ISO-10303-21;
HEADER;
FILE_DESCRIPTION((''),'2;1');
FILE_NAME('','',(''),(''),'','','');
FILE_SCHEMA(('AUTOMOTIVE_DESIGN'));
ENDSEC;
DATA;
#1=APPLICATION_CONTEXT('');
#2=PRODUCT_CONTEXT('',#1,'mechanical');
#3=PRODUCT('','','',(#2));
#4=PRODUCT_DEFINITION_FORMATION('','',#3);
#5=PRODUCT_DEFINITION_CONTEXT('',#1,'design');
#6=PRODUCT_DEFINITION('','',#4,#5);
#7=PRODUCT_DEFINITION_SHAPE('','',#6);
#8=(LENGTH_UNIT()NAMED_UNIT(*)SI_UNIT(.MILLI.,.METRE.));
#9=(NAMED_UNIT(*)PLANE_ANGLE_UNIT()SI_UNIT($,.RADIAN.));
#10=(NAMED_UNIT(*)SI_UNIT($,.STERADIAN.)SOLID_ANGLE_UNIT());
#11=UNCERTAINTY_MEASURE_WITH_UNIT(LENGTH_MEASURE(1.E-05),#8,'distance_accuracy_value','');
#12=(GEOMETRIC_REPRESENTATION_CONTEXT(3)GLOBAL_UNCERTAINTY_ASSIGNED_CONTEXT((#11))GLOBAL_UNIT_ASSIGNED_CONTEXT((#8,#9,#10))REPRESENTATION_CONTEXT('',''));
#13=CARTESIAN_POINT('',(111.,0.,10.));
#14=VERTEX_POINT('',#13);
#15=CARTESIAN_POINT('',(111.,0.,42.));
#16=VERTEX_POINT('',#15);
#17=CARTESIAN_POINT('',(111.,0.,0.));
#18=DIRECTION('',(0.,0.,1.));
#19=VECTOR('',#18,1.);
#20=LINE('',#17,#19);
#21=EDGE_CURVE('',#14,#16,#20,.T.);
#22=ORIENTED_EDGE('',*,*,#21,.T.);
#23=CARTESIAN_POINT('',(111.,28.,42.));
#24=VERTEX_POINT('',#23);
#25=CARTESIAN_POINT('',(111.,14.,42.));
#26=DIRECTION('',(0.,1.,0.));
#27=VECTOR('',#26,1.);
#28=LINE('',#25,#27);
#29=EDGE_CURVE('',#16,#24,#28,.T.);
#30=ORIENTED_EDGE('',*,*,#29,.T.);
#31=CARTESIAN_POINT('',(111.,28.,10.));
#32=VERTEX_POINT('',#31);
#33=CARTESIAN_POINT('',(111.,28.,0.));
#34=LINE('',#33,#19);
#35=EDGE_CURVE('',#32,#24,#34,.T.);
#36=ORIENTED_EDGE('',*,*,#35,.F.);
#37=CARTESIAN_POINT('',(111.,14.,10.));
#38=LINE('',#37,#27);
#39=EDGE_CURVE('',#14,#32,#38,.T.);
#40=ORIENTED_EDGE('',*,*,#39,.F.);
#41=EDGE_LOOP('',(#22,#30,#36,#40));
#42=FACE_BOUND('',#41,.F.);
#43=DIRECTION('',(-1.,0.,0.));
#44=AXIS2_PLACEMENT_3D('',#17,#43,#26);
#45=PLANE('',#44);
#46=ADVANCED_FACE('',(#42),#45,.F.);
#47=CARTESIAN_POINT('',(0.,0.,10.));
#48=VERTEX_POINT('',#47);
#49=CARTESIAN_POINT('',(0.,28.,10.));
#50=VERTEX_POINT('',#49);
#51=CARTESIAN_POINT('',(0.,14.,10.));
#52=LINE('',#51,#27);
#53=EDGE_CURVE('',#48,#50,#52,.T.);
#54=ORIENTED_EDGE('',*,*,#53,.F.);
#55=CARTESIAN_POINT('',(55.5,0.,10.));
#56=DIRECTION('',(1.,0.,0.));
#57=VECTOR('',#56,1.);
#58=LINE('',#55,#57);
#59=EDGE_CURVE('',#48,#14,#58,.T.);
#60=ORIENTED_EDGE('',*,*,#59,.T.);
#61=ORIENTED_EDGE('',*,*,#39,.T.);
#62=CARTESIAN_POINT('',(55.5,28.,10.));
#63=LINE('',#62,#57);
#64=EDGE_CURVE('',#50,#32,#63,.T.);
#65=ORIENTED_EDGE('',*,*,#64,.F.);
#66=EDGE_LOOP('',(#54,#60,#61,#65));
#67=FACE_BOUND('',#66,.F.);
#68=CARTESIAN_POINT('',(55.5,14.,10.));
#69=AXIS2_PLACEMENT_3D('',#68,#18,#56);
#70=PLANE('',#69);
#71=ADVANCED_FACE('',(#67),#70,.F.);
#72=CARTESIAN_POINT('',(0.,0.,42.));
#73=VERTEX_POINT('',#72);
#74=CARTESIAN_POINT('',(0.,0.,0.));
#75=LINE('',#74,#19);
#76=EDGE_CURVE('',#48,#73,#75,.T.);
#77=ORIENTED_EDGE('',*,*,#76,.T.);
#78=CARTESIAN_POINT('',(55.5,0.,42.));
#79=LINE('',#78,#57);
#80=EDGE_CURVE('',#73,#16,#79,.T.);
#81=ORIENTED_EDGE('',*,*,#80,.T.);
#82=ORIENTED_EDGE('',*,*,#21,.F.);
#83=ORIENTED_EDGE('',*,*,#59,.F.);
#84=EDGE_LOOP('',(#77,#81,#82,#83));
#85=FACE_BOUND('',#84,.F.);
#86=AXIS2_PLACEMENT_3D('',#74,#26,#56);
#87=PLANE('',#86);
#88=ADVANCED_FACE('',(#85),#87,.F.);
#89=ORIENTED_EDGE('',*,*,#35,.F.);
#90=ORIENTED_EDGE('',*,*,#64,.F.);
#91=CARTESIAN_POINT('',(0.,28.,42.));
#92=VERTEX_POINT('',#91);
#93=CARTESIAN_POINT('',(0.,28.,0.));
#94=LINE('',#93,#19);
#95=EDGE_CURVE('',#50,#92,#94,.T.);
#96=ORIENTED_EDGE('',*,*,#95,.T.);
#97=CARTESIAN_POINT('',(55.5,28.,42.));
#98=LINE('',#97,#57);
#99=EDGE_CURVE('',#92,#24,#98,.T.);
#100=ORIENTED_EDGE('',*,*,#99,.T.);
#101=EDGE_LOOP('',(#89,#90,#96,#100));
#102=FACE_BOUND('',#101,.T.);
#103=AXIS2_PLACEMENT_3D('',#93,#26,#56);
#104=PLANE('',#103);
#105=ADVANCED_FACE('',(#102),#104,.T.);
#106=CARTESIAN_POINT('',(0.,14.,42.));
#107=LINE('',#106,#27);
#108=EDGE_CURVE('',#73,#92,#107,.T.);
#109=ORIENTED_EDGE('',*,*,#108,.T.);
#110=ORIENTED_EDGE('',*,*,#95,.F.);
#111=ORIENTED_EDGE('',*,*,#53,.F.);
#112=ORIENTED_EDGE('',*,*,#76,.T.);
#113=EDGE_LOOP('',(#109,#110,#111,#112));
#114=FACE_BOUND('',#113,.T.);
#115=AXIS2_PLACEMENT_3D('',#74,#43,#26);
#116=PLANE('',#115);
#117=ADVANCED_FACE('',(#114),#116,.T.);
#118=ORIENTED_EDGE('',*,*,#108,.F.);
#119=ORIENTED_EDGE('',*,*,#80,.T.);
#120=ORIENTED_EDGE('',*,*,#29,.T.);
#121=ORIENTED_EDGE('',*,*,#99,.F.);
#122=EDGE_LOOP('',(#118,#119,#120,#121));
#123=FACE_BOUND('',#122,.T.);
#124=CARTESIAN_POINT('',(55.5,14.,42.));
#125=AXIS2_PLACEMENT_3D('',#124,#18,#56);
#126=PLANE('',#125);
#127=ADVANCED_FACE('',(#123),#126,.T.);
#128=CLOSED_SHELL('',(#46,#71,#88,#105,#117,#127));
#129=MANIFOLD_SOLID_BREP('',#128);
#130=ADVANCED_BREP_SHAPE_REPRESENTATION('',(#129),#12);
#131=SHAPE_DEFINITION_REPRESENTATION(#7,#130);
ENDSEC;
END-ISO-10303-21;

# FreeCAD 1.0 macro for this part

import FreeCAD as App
import Part
import Sketcher
from FreeCAD import Vector
Q = App.Units.Quantity


def add_polygon(sketch, points):
    """Adds a closed chain of lines whose ends are joined by coincident constraints."""
    first, n = sketch.GeometryCount, len(points)
    for a, b in zip(points, points[1:] + points[:1]):
        sketch.addGeometry(Part.LineSegment(App.Vector(*a, 0), App.Vector(*b, 0)), False)
    for i in range(n):
        sketch.addConstraint(Sketcher.Constraint("Coincident", first + i, 2, first + (i + 1) % n, 1))

doc = App.newDocument("Part")
body = doc.addObject("PartDesign::Body", "Body")

# Sketch on XY plane
sketch1 = body.newObject("Sketcher::SketchObject", "Sketch")
sketch1.AttachmentSupport = (doc.getObject("XY_Plane"), [""])
sketch1.MapMode = "FlatFace"
add_polygon(sketch1, [(0, 28), (0, 0), (111, 0), (111, 28)])  # lines 0-3
sketch1.addConstraint(Sketcher.Constraint("Vertical", 0))
sketch1.addConstraint(Sketcher.Constraint("Horizontal", 1))
sketch1.addConstraint(Sketcher.Constraint("Vertical", 2))
sketch1.addConstraint(Sketcher.Constraint("Horizontal", 3))
sketch1.addConstraint(Sketcher.Constraint("Coincident", 0, 2, -1, 1))
sketch1.addConstraint(Sketcher.Constraint("DistanceX", 1, 1, 1, 2, Q("111 mm")))
sketch1.addConstraint(Sketcher.Constraint("DistanceY", 0, 2, 0, 1, Q("28 mm")))
pad1 = body.newObject("PartDesign::Pad", "Pad")
pad1.Profile = sketch1
pad1.Length = 42

# Sketch on XY plane
sketch2 = body.newObject("Sketcher::SketchObject", "Sketch001")
sketch2.AttachmentSupport = (doc.getObject("XY_Plane"), [""])
sketch2.MapMode = "FlatFace"
add_polygon(sketch2, [(0, 28), (0, 0), (111, 0), (111, 28)])  # lines 0-3
sketch2.addConstraint(Sketcher.Constraint("Vertical", 0))
sketch2.addConstraint(Sketcher.Constraint("Horizontal", 1))
sketch2.addConstraint(Sketcher.Constraint("Vertical", 2))
sketch2.addConstraint(Sketcher.Constraint("Horizontal", 3))
sketch2.addConstraint(Sketcher.Constraint("Coincident", 0, 2, -1, 1))
sketch2.addConstraint(Sketcher.Constraint("DistanceX", 1, 1, 1, 2, Q("111 mm")))
sketch2.addConstraint(Sketcher.Constraint("DistanceY", 0, 2, 0, 1, Q("28 mm")))
pocket1 = body.newObject("PartDesign::Pocket", "Pocket")
pocket1.Profile = sketch2
pocket1.Length = 10
pocket1.Reversed = True

doc.recompute()
